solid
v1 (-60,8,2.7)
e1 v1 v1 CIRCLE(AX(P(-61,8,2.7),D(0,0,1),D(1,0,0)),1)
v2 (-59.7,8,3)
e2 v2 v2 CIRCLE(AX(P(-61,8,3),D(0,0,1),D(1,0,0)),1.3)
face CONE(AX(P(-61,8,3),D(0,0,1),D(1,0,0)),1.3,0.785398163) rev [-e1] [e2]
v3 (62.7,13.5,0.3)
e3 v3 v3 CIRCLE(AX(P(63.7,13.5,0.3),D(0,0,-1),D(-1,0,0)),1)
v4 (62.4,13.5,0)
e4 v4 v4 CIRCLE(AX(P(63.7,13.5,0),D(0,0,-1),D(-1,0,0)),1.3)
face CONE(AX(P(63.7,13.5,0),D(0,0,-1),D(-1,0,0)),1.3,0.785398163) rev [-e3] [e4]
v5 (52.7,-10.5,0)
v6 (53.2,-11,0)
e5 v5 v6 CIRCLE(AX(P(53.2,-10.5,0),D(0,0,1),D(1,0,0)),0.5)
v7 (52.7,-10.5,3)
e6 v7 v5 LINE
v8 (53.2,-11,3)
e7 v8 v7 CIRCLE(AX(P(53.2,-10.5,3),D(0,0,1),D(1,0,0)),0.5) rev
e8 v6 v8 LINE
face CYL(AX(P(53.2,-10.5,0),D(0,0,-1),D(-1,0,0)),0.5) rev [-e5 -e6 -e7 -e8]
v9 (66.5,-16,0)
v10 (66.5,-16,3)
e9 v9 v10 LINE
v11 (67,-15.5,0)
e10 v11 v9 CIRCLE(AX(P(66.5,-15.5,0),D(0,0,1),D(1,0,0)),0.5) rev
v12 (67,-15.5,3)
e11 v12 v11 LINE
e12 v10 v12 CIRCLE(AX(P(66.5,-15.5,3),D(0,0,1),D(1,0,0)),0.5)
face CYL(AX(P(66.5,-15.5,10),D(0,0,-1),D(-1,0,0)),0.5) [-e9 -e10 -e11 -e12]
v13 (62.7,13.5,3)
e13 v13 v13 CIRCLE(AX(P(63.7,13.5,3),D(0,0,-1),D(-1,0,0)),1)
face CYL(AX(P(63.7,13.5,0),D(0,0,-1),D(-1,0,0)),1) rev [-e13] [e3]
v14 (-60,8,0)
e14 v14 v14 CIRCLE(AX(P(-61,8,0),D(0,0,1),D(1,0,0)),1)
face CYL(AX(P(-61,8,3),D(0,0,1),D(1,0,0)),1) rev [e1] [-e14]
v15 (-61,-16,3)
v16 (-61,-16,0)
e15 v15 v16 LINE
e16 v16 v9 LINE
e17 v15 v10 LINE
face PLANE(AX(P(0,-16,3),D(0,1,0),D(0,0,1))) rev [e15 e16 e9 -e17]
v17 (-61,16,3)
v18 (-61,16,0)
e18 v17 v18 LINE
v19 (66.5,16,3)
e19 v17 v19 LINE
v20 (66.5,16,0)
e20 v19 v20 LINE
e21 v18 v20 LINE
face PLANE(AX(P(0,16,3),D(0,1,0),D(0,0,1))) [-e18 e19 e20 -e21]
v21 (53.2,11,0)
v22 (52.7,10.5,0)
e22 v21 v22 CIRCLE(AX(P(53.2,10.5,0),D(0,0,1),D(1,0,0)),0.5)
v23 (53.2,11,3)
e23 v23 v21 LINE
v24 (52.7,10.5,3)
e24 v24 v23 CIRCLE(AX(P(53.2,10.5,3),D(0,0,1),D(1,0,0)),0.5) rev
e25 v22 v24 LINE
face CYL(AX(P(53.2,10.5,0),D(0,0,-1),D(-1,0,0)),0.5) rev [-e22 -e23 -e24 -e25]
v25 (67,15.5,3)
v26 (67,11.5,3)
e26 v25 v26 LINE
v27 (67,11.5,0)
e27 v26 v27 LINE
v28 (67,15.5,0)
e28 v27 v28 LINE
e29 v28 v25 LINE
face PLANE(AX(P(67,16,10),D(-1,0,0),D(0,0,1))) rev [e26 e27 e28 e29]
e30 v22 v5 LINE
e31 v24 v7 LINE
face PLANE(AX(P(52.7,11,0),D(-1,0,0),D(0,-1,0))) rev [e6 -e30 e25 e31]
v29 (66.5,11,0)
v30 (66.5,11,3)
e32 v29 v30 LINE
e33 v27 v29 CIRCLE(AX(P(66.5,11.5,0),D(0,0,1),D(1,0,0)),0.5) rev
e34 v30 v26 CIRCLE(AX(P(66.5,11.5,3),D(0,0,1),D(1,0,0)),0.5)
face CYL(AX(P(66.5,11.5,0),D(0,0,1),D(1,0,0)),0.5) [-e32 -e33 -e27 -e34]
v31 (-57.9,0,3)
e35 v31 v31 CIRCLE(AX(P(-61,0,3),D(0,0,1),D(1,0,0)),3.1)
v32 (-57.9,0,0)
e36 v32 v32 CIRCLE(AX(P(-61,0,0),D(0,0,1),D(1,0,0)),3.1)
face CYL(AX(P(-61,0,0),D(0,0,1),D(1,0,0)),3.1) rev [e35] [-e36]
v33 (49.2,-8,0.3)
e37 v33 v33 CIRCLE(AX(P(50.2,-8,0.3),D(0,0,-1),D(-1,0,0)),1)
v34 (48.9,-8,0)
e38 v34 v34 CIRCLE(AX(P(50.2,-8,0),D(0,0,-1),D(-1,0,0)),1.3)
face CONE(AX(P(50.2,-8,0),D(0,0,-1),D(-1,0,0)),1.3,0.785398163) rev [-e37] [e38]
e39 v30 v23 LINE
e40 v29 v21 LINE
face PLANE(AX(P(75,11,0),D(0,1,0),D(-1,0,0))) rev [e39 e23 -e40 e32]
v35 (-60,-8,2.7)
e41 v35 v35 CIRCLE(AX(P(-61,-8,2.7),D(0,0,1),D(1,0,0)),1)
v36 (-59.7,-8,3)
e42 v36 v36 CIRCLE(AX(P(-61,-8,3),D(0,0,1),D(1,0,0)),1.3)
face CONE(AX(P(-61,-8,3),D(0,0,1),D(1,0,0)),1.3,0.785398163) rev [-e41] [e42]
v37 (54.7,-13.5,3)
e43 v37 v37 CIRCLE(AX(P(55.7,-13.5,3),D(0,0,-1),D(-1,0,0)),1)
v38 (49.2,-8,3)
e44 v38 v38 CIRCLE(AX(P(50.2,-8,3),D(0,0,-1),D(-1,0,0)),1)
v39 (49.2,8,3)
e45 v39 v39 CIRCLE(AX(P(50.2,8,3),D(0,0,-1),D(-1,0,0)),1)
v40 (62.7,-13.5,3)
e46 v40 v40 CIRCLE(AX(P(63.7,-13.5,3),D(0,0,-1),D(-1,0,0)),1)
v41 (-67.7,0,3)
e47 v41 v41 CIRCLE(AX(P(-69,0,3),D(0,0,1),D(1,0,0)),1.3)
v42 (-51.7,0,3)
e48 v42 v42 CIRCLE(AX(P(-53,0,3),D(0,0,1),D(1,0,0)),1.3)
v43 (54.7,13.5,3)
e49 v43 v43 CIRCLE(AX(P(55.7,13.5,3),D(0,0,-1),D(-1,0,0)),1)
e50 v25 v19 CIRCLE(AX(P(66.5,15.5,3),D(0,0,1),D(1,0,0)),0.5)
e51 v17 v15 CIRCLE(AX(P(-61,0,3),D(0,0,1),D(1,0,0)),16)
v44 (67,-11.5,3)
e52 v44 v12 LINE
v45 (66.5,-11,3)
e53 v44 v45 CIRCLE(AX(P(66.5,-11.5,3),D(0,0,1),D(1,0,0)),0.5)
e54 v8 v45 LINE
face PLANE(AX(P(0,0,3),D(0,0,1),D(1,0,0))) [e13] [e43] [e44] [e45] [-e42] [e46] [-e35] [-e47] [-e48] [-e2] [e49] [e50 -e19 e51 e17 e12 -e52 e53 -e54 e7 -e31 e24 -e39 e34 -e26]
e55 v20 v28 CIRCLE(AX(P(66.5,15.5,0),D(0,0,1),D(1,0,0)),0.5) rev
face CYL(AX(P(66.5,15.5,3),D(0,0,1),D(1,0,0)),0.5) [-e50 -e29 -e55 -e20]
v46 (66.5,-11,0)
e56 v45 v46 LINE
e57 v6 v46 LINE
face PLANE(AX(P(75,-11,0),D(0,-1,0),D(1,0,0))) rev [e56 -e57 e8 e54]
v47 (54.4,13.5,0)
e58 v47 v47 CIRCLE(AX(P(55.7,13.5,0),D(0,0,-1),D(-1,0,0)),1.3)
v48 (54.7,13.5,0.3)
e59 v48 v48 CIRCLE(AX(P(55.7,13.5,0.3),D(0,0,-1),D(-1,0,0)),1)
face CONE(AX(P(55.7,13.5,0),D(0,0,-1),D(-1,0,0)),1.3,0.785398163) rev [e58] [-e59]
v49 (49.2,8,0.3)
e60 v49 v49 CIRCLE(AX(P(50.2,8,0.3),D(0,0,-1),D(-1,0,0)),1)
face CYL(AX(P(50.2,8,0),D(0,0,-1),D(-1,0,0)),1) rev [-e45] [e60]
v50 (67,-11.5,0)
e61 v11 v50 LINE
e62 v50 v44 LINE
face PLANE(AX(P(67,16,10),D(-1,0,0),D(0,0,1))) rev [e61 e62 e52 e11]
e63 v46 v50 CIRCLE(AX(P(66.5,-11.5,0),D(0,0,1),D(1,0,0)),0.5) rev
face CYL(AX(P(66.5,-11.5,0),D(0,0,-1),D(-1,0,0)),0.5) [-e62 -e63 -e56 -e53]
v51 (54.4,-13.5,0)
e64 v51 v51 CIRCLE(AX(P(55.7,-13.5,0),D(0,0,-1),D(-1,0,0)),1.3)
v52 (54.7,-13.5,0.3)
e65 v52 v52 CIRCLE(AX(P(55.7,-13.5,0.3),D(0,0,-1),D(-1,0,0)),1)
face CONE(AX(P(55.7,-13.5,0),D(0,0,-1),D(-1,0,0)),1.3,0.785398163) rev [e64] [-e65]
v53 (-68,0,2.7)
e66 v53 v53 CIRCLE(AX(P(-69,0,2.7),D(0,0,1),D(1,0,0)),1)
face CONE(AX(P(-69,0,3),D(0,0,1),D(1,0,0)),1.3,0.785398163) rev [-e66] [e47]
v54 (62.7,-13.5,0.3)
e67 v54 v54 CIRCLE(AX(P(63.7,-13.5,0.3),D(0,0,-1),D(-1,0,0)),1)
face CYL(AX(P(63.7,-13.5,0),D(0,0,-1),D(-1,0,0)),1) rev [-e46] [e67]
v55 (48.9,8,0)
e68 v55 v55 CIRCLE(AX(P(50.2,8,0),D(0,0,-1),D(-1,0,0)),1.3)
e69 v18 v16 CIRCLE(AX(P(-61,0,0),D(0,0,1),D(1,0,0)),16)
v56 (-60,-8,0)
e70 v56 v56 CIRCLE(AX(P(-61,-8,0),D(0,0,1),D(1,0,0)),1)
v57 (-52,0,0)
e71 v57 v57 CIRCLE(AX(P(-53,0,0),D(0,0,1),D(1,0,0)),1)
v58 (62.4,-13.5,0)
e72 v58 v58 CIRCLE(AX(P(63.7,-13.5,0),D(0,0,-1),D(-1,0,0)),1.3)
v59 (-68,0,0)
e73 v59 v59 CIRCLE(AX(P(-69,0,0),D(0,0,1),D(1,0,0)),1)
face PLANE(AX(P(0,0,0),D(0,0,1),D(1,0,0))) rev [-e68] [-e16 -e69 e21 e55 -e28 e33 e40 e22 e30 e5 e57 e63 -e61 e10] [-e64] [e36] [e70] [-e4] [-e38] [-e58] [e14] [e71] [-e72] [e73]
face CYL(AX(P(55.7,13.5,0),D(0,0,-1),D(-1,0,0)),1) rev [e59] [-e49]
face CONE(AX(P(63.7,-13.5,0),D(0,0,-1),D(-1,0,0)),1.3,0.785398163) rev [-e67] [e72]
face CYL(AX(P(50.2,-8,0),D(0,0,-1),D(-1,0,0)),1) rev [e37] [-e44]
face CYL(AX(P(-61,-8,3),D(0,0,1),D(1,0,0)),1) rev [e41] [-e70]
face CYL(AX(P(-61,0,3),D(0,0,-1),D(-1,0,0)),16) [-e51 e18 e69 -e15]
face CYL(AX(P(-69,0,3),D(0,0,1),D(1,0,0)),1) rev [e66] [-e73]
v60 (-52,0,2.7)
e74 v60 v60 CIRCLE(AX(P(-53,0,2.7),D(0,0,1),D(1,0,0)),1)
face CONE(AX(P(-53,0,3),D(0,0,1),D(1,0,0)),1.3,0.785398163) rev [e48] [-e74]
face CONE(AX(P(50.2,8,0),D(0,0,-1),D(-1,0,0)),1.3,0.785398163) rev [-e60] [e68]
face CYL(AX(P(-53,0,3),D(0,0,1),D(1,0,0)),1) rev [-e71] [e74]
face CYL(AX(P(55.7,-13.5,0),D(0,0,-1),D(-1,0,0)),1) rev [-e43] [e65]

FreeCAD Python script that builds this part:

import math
import FreeCAD as App
import Part
import Sketcher

V = App.Vector
Q = App.Units.Quantity


def edges_at(feature, points):
    """Names of the edges that pass closest to the given points."""
    edges = feature.Shape.Edges
    near = lambda p: min(range(len(edges)), key=lambda i: edges[i].distToShape(Part.Vertex(*p))[0])
    return sorted({f"Edge{near(p) + 1}" for p in points})


def add_polygon(sketch, points):
    """Adds a closed chain of lines whose ends are joined by coincident constraints."""
    first, n = sketch.GeometryCount, len(points)
    for a, b in zip(points, points[1:] + points[:1]):
        sketch.addGeometry(Part.LineSegment(App.Vector(*a, 0), App.Vector(*b, 0)), False)
    for i in range(n):
        sketch.addConstraint(Sketcher.Constraint("Coincident", first + i, 2, first + (i + 1) % n, 1))

doc = App.newDocument("Part")
params = doc.addObject("Spreadsheet::Sheet", "Params")
for row, (alias, value) in enumerate([
    ("sketch1_radius", "16 mm"),
    ("sketch1_width", "136 mm"),
    ("pad1_length", "3 mm"),
    ("sketch2_diameter", "6.2 mm"),
    ("sketch3_diameter", "2 mm"),
    ("hole_diameter", "2 mm"),
    ("hole_csink_diameter", "2.6 mm"),
    ("sketch4_height", "22 mm"),
    ("sketch4_width", "22.3 mm"),
    ("sketch5_diameter", "2 mm"),
    ("hole2_diameter", "2 mm"),
    ("hole2_csink_diameter", "2.6 mm"),
    ("sketch6_width", "8 mm"),
    ("sketch6_height", "32 mm"),
    ("pocket3_length", "10 mm"),
    ("fillet_radius", "0.5 mm"),
], start=1):
    params.set(f"A{row}", alias)
    params.set(f"B{row}", "=" + value)
    params.setAlias(f"B{row}", alias)

body = doc.addObject("PartDesign::Body", "Body")

sketch1 = body.newObject("Sketcher::SketchObject", "Sketch")
sketch1.AttachmentSupport = (doc.getObject("XY_Plane"), [""])
sketch1.MapMode = "FlatFace"
sketch1.addGeometry([
    Part.ArcOfCircle(Part.Circle(V(-61, 0, 0), V(0, 0, 1), 16), math.radians(90), math.radians(270)),
    Part.LineSegment(V(-61, -16, 0), V(75, -16, 0)),
    Part.LineSegment(V(75, -16, 0), V(75, 16, 0)),
    Part.LineSegment(V(75, 16, 0), V(-61, 16, 0)),
], False)
sketch1.addConstraint([
    Sketcher.Constraint("Tangent", 0, 2, 1, 1),
    Sketcher.Constraint("Coincident", 1, 2, 2, 1),
    Sketcher.Constraint("Coincident", 2, 2, 3, 1),
    Sketcher.Constraint("Tangent", 3, 2, 0, 1),
    Sketcher.Constraint("Horizontal", 1),
    Sketcher.Constraint("Vertical", 2),
    Sketcher.Constraint("Horizontal", 3),
    Sketcher.Constraint("PointOnObject", 0, 3, -1),
    Sketcher.Constraint("Radius", 0, Q("16 mm")),
    Sketcher.Constraint("DistanceX", 1, 1, 1, 2, Q("136 mm")),
    Sketcher.Constraint("DistanceX", 0, 3, -1, 1, Q("61 mm")),
])
sketch1.setExpression("Constraints[8]", "Params.sketch1_radius")
sketch1.setExpression("Constraints[9]", "Params.sketch1_width")
pad1 = body.newObject("PartDesign::Pad", "Pad")
pad1.Profile = sketch1
pad1.setExpression("Length", "Params.pad1_length")

sketch2 = body.newObject("Sketcher::SketchObject", "Sketch001")
sketch2.AttachmentSupport = (doc.getObject("XY_Plane"), [""])
sketch2.MapMode = "FlatFace"
sketch2.AttachmentOffset = App.Placement(V(0, 0, 3), App.Rotation())
sketch2.addGeometry(Part.Circle(V(-61, 0, 0), V(0, 0, 1), 3.1), False)
sketch2.addConstraint([
    Sketcher.Constraint("PointOnObject", 0, 3, -1),
    Sketcher.Constraint("Diameter", 0, Q("6.2 mm")),
    Sketcher.Constraint("DistanceX", 0, 3, -1, 1, Q("61 mm")),
])
sketch2.setExpression("Constraints[1]", "Params.sketch2_diameter")
pocket1 = body.newObject("PartDesign::Pocket", "Pocket")
pocket1.Profile = sketch2
pocket1.Type = "ThroughAll"

sketch3 = body.newObject("Sketcher::SketchObject", "Sketch002")
sketch3.AttachmentSupport = (doc.getObject("XY_Plane"), [""])
sketch3.MapMode = "FlatFace"
sketch3.AttachmentOffset = App.Placement(V(0, 0, 3), App.Rotation())
sketch3.addGeometry([
    Part.Circle(V(-61, 8, 0), V(0, 0, 1), 1),
    Part.Circle(V(-53, 0, 0), V(0, 0, 1), 1),
    Part.Circle(V(-61, -8, 0), V(0, 0, 1), 1),
    Part.Circle(V(-69, 0, 0), V(0, 0, 1), 1),
], False)
sketch3.addConstraint([
    Sketcher.Constraint("Equal", 0, 1),
    Sketcher.Constraint("Equal", 1, 2),
    Sketcher.Constraint("Equal", 2, 3),
    Sketcher.Constraint("Symmetric", 0, 3, 2, 3, -1),
    Sketcher.Constraint("PointOnObject", 1, 3, -1),
    Sketcher.Constraint("PointOnObject", 3, 3, -1),
    Sketcher.Constraint("Diameter", 0, Q("2 mm")),
    Sketcher.Constraint("DistanceX", 0, 3, -1, 1, Q("61 mm")),
    Sketcher.Constraint("DistanceY", -1, 1, 0, 3, Q("8 mm")),
    Sketcher.Constraint("DistanceX", 1, 3, -1, 1, Q("53 mm")),
    Sketcher.Constraint("DistanceX", 3, 3, -1, 1, Q("69 mm")),
])
sketch3.setExpression("Constraints[6]", "Params.sketch3_diameter")
doc.recompute()
hole = body.newObject("PartDesign::Hole", "Hole")
hole.Profile = sketch3
hole.ThreadType = "None"
hole.setExpression("Diameter", "Params.hole_diameter")
hole.DepthType = "ThroughAll"
hole.HoleCutType = "Countersink"
hole.setExpression("HoleCutDiameter", "Params.hole_csink_diameter")
hole.HoleCutCountersinkAngle = 90

sketch4 = body.newObject("Sketcher::SketchObject", "Sketch003")
sketch4.AttachmentSupport = (doc.getObject("XY_Plane"), [""])
sketch4.MapMode = "FlatFace"
sketch4.AttachmentOffset = App.Placement(V(0, 0, 3), App.Rotation())
add_polygon(sketch4, [(53, 11), (53, -11), (75, -11), (75, 11)])
sketch4.addConstraint([
    Sketcher.Constraint("Vertical", 0),
    Sketcher.Constraint("Horizontal", 1),
    Sketcher.Constraint("Vertical", 2),
    Sketcher.Constraint("Horizontal", 3),
    Sketcher.Constraint("DistanceY", 0, 2, 0, 1, Q("22 mm")),
    Sketcher.Constraint("DistanceX", 1, 1, 1, 2, Q("22.3 mm")),
    Sketcher.Constraint("DistanceY", 0, 2, -1, 1, Q("11 mm")),
    Sketcher.Constraint("DistanceX", -1, 1, 1, 2, Q("75 mm")),
])
sketch4.setExpression("Constraints[8]", "Params.sketch4_height")
sketch4.setExpression("Constraints[9]", "Params.sketch4_width")
pocket2 = body.newObject("PartDesign::Pocket", "Pocket001")
pocket2.Profile = sketch4
pocket2.Type = "ThroughAll"

sketch5 = body.newObject("Sketcher::SketchObject", "Sketch004")
sketch5.AttachmentSupport = (doc.getObject("XY_Plane"), [""])
sketch5.MapMode = "FlatFace"
sketch5.addGeometry([
    Part.Circle(V(71.7, 13.5, 0), V(0, 0, 1), 1),
    Part.Circle(V(63.7, 13.5, 0), V(0, 0, 1), 1),
    Part.Circle(V(55.7, 13.5, 0), V(0, 0, 1), 1),
    Part.Circle(V(50.2, 8, 0), V(0, 0, 1), 1),
    Part.Circle(V(50.2, -8, 0), V(0, 0, 1), 1),
    Part.Circle(V(55.7, -13.5, 0), V(0, 0, 1), 1),
    Part.Circle(V(63.7, -13.5, 0), V(0, 0, 1), 1),
    Part.Circle(V(71.7, -13.5, 0), V(0, 0, 1), 1),
], False)
sketch5.addConstraint([
    Sketcher.Constraint("Equal", 0, 1),
    Sketcher.Constraint("Equal", 1, 2),
    Sketcher.Constraint("Equal", 2, 3),
    Sketcher.Constraint("Equal", 3, 4),
    Sketcher.Constraint("Equal", 4, 5),
    Sketcher.Constraint("Equal", 5, 6),
    Sketcher.Constraint("Equal", 6, 7),
    Sketcher.Constraint("Symmetric", 3, 3, 4, 3, -1),
    Sketcher.Constraint("Symmetric", 2, 3, 5, 3, -1),
    Sketcher.Constraint("Symmetric", 1, 3, 6, 3, -1),
    Sketcher.Constraint("Symmetric", 0, 3, 7, 3, -1),
    Sketcher.Constraint("Horizontal", 0, 3, 1, 3),
    Sketcher.Constraint("Horizontal", 1, 3, 2, 3),
    Sketcher.Constraint("Diameter", 0, Q("2 mm")),
    Sketcher.Constraint("DistanceY", -1, 1, 3, 3, Q("8 mm")),
    Sketcher.Constraint("DistanceX", 1, 3, 0, 3, Q("8 mm")),
    Sketcher.Constraint("DistanceX", 2, 3, 1, 3, Q("8 mm")),
    Sketcher.Constraint("DistanceY", 5, 3, 2, 3, Q("27 mm")),
    Sketcher.Constraint("DistanceX", -1, 1, 0, 3, Q("71.7 mm")),
    Sketcher.Constraint("DistanceX", -1, 1, 3, 3, Q("50.2 mm")),
])
sketch5.setExpression("Constraints[13]", "Params.sketch5_diameter")
doc.recompute()
hole2 = body.newObject("PartDesign::Hole", "Hole001")
hole2.Profile = sketch5
hole2.ThreadType = "None"
hole2.setExpression("Diameter", "Params.hole2_diameter")
hole2.DepthType = "ThroughAll"
hole2.HoleCutType = "Countersink"
hole2.setExpression("HoleCutDiameter", "Params.hole2_csink_diameter")
hole2.HoleCutCountersinkAngle = 90
hole2.Reversed = True

sketch6 = body.newObject("Sketcher::SketchObject", "Sketch005")
sketch6.AttachmentSupport = (doc.getObject("XY_Plane"), [""])
sketch6.MapMode = "FlatFace"
add_polygon(sketch6, [(75, 16), (75, -16), (67, -16), (67, 16)])
sketch6.addConstraint([
    Sketcher.Constraint("Vertical", 0),
    Sketcher.Constraint("Horizontal", 1),
    Sketcher.Constraint("Vertical", 2),
    Sketcher.Constraint("Horizontal", 3),
    Sketcher.Constraint("DistanceX", 1, 2, 1, 1, Q("8 mm")),
    Sketcher.Constraint("DistanceY", 0, 2, 0, 1, Q("32 mm")),
    Sketcher.Constraint("DistanceX", -1, 1, 0, 2, Q("75 mm")),
    Sketcher.Constraint("DistanceY", 0, 2, -1, 1, Q("16 mm")),
])
sketch6.setExpression("Constraints[8]", "Params.sketch6_width")
sketch6.setExpression("Constraints[9]", "Params.sketch6_height")
pocket3 = body.newObject("PartDesign::Pocket", "Pocket002")
pocket3.Profile = sketch6
pocket3.setExpression("Length", "Params.pocket3_length")
pocket3.Reversed = True
doc.recompute()

fillet = body.newObject("PartDesign::Fillet", "Fillet")
fillet.Base = (pocket3, edges_at(pocket3, [
    (67, 11, 1.5),
    (67, -11, 1.5),
    (67, 16, 1.5),
    (67, -16, 1.5),
    (52.7, -11, 1.5),
    (52.7, 11, 1.5),
]))
fillet.setExpression("Radius", "Params.fillet_radius")

doc.recompute()
